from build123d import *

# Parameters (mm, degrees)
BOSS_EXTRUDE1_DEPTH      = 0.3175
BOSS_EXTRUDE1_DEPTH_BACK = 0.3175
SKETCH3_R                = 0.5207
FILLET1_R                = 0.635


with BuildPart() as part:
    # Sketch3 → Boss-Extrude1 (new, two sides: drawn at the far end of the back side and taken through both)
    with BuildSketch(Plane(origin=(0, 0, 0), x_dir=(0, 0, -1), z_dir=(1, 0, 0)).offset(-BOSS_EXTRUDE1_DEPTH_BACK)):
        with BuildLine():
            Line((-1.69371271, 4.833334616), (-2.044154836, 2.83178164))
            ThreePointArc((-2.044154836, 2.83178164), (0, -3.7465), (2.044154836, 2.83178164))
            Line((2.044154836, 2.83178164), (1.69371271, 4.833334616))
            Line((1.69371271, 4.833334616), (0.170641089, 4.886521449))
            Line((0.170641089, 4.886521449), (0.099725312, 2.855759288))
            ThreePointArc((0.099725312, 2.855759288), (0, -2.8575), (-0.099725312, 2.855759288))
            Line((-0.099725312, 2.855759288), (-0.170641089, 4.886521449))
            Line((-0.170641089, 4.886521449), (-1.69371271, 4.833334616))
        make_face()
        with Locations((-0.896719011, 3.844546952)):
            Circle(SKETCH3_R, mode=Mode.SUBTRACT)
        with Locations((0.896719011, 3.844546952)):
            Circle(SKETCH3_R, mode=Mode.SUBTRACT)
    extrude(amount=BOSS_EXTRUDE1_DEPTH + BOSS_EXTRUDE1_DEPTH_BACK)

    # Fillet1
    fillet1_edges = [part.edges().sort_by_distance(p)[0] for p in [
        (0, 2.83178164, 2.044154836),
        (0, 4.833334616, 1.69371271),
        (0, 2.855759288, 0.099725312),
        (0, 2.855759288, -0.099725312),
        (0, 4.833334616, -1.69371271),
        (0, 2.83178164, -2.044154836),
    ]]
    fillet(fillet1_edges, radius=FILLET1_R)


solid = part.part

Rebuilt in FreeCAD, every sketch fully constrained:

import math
import FreeCAD as App
import Part
import Sketcher
Q = App.Units.Quantity


def edges_at(feature, points):
    """Names of the edges that pass closest to the given points."""
    edges = feature.Shape.Edges
    near = lambda p: min(range(len(edges)), key=lambda i: edges[i].distToShape(Part.Vertex(*p))[0])
    return sorted({f"Edge{near(p) + 1}" for p in points})

doc = App.newDocument("Part")
body = doc.addObject("PartDesign::Body", "Body")

sketch1 = body.newObject("Sketcher::SketchObject", "Sketch")
sketch1.AttachmentSupport = (doc.getObject("YZ_Plane"), [""])
sketch1.MapMode = "FlatFace"
sketch1.addGeometry([
    Part.LineSegment(App.Vector(4.83, 1.69, 0), App.Vector(2.83, 2.04, 0)),
    Part.ArcOfCircle(Part.Circle(App.Vector(-0.14, 0, 0), App.Vector(0, 0, 1), 3.61), math.radians(35), math.radians(325)),
    Part.LineSegment(App.Vector(2.83, -2.04, 0), App.Vector(4.83, -1.69, 0)),
    Part.LineSegment(App.Vector(4.83, -1.69, 0), App.Vector(4.89, -0.17, 0)),
    Part.LineSegment(App.Vector(4.89, -0.17, 0), App.Vector(2.86, -0.1, 0)),
    Part.ArcOfCircle(Part.Circle(App.Vector(0, 0, 0), App.Vector(0, 0, 1), 2.86), math.radians(2), math.radians(358)),
    Part.LineSegment(App.Vector(2.86, 0.1, 0), App.Vector(4.89, 0.17, 0)),
    Part.LineSegment(App.Vector(4.89, 0.17, 0), App.Vector(4.83, 1.69, 0)),
    Part.Circle(App.Vector(3.84, 0.9, 0), App.Vector(0, 0, 1), 0.52),
    Part.Circle(App.Vector(3.84, -0.9, 0), App.Vector(0, 0, 1), 0.52),
], False)
sketch1.addConstraint([
    Sketcher.Constraint("Coincident", 0, 2, 1, 1),
    Sketcher.Constraint("Coincident", 1, 2, 2, 1),
    Sketcher.Constraint("Coincident", 2, 2, 3, 1),
    Sketcher.Constraint("Coincident", 3, 2, 4, 1),
    Sketcher.Constraint("Coincident", 4, 2, 5, 2),
    Sketcher.Constraint("Coincident", 5, 1, 6, 1),
    Sketcher.Constraint("Coincident", 6, 2, 7, 1),
    Sketcher.Constraint("Coincident", 7, 2, 0, 1),
    Sketcher.Constraint("Coincident", 5, 3, -1, 1),
    Sketcher.Constraint("Equal", 8, 9),
    Sketcher.Constraint("Symmetric", 8, 3, 9, 3, -1),
    Sketcher.Constraint("Symmetric", 0, 2, 1, 2, -1),
    Sketcher.Constraint("Symmetric", 3, 2, 6, 2, -1),
    Sketcher.Constraint("Symmetric", 2, 2, 7, 2, -1),
    Sketcher.Constraint("Perpendicular", 3, 4),
    Sketcher.Constraint("Perpendicular", 6, 7),
    Sketcher.Constraint("Equal", 2, 4),
    Sketcher.Constraint("Diameter", 8, Q("0.041 in")),
    Sketcher.Constraint("Angle", 3, Q("88 deg")),
    Sketcher.Constraint("Radius", 5, Q("0.1125 in")),
    Sketcher.Constraint("Distance", 0, Q("0.08 in")),
    Sketcher.Constraint("Distance", 3, Q("0.06 in")),
    Sketcher.Constraint("Radius", 1, 3.606744),
    Sketcher.Constraint("DistanceY", -1, 1, 8, 3, 0.896719),
    Sketcher.Constraint("DistanceX", -1, 1, 0, 2, 2.831782),
    Sketcher.Constraint("DistanceX", -1, 1, 3, 2, 4.886521),
    Sketcher.Constraint("DistanceX", -1, 1, 8, 3, 3.844547),
])
pad1 = body.newObject("PartDesign::Pad", "Pad")
pad1.Profile = sketch1
pad1.Type = "TwoLengths"
pad1.Length = Q("0.0125 in")
pad1.Length2 = Q("0.0125 in")
doc.recompute()

fillet = body.newObject("PartDesign::Fillet", "Fillet")
fillet.Base = (pad1, edges_at(pad1, [
    (0, 2.832, 2.044),
    (0, 4.833, 1.694),
    (0, 2.856, 0.1),
    (0, 2.856, -0.1),
    (0, 4.833, -1.694),
    (0, 2.832, -2.044),
]))
fillet.Radius = Q("0.025 in")

doc.recompute()
